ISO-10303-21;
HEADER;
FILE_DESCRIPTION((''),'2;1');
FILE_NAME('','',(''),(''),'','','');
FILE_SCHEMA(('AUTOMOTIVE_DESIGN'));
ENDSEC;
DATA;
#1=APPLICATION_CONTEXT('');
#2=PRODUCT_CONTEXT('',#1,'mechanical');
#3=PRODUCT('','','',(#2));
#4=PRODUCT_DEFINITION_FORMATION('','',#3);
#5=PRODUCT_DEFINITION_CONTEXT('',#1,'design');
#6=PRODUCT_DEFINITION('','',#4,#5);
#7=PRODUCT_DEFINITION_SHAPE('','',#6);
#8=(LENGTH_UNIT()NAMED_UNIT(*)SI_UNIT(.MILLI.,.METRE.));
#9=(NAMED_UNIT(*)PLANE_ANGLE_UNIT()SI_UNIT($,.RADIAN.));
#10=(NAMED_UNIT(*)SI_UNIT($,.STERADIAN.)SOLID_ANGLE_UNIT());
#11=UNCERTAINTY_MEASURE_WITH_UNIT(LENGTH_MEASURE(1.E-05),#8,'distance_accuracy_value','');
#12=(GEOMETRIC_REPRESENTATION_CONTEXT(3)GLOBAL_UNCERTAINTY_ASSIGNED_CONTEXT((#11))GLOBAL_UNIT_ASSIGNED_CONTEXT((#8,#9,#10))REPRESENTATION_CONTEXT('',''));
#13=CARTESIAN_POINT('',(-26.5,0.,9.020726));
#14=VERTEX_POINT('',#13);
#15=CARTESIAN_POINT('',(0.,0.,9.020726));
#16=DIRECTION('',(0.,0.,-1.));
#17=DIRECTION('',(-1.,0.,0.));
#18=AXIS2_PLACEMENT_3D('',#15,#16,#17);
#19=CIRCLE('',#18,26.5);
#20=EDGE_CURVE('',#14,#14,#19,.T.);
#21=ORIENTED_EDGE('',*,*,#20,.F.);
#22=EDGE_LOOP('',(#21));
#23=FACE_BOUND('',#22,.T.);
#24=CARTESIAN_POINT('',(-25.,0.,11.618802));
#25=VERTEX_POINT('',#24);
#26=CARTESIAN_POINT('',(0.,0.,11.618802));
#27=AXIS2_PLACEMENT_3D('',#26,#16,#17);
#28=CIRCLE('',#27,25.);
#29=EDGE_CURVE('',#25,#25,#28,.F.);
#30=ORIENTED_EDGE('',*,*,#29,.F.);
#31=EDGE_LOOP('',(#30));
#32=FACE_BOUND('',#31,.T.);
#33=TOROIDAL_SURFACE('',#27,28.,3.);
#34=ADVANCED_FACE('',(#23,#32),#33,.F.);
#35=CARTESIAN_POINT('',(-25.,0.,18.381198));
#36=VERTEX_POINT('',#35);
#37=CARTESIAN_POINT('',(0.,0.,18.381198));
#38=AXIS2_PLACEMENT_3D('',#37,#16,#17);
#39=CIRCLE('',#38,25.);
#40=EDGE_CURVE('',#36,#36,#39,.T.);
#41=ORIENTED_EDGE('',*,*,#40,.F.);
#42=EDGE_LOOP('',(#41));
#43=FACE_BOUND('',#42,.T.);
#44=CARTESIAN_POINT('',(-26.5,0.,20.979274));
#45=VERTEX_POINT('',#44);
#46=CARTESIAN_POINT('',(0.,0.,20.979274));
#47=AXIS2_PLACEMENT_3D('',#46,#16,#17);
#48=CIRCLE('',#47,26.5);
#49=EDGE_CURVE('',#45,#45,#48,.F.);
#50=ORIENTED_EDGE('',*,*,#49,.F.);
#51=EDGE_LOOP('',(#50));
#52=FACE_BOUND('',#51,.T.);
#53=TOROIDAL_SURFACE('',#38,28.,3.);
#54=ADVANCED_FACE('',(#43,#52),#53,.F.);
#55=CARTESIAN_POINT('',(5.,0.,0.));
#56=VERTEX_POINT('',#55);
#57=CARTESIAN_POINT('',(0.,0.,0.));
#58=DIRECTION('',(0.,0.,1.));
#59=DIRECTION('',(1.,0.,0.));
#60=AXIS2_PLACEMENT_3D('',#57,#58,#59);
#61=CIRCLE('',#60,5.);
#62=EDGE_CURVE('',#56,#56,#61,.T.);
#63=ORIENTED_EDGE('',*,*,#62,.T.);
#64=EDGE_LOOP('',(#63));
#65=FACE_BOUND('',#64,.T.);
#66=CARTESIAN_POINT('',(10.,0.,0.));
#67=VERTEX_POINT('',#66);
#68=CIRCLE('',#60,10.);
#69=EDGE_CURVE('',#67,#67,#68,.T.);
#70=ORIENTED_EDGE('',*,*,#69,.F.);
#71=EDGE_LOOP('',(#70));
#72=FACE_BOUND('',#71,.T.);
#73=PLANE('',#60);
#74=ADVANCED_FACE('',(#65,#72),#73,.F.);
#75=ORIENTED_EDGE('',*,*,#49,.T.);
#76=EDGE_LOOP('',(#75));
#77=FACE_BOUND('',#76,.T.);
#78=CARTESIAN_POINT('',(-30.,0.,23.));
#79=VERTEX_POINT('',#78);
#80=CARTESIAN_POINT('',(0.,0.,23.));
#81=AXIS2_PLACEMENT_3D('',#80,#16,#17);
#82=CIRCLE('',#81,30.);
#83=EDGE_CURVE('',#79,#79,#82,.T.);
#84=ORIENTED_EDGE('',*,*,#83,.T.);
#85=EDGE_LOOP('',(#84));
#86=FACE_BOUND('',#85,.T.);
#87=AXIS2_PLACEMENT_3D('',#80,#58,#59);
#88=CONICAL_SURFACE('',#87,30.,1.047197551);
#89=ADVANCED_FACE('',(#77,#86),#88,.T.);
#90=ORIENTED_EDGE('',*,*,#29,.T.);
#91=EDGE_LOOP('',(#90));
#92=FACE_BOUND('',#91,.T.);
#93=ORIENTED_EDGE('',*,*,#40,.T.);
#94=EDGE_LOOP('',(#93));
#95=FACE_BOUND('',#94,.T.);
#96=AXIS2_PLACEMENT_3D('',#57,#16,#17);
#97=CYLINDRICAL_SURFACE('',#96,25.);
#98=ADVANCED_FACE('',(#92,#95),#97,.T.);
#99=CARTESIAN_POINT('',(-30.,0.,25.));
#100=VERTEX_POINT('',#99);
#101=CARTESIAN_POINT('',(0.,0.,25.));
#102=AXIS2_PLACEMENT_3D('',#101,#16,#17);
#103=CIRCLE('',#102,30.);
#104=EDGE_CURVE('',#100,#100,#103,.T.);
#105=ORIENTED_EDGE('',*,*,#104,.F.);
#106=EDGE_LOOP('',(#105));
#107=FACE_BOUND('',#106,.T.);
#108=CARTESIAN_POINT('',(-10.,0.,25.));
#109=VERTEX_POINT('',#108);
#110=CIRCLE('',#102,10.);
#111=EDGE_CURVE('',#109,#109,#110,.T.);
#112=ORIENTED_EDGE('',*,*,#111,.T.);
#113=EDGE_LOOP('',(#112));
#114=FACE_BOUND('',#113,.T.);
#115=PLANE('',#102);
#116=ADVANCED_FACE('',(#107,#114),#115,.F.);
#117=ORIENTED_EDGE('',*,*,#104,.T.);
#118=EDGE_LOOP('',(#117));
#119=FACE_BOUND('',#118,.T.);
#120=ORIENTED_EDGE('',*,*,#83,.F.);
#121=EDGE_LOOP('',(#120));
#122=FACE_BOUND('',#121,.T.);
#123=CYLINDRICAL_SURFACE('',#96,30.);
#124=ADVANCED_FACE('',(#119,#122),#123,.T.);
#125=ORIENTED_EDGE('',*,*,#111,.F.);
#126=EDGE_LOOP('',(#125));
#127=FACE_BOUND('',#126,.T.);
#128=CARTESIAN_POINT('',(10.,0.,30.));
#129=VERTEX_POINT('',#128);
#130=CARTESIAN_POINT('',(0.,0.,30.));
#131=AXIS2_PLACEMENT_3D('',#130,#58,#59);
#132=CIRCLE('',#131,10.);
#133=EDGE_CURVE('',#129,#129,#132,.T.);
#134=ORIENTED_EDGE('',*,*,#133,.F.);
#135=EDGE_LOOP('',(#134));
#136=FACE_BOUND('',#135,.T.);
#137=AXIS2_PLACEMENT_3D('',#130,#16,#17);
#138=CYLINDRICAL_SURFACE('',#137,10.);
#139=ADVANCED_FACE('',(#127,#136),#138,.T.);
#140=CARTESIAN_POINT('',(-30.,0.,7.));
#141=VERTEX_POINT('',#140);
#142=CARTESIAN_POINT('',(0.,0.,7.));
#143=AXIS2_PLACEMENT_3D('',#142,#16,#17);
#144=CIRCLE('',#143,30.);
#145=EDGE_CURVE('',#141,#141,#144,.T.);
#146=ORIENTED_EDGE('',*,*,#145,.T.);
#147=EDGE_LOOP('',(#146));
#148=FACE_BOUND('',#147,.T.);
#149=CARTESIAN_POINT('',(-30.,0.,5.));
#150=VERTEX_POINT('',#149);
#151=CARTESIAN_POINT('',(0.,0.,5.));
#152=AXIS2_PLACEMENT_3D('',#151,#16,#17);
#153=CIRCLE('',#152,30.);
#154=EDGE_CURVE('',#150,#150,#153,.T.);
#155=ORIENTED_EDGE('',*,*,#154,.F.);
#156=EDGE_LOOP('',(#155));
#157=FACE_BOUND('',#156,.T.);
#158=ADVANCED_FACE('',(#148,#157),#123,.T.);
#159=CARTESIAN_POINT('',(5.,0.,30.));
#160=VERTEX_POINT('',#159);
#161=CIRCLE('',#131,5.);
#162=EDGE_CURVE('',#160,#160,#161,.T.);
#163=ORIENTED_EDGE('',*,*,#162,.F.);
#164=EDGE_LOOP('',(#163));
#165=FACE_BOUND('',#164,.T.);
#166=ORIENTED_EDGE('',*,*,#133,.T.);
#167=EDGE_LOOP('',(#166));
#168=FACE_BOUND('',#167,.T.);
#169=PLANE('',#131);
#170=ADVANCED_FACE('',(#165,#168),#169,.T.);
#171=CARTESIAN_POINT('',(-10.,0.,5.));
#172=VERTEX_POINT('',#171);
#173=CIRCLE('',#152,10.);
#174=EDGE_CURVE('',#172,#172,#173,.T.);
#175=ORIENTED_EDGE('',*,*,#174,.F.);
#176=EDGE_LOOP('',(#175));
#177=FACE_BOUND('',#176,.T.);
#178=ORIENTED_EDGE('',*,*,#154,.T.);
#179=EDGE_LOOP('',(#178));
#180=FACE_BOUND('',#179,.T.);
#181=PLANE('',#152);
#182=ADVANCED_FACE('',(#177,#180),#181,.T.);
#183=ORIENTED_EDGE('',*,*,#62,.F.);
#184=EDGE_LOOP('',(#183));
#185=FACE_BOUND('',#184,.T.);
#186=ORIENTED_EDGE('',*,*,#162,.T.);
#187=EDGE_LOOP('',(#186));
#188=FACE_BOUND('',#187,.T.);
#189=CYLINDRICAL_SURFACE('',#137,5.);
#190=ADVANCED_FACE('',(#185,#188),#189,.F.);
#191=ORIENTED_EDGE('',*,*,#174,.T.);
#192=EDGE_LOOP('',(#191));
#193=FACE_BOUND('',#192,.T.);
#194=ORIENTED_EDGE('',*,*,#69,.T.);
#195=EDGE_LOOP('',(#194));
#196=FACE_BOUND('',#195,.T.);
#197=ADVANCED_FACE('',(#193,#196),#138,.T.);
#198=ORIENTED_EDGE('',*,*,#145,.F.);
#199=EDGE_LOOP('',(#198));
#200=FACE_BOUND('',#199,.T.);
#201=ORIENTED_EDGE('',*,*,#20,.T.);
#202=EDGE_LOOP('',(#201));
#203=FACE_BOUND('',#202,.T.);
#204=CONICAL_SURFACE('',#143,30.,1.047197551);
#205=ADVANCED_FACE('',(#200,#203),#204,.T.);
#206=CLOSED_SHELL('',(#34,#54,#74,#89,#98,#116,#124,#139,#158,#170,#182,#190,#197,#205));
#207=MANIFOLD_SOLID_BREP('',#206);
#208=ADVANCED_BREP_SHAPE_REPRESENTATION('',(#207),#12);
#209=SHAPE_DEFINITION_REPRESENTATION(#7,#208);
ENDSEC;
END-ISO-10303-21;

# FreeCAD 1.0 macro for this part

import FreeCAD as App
import Part
import Sketcher

V = App.Vector
Q = App.Units.Quantity


def edges_at(feature, points):
    """Names of the edges that pass closest to the given points."""
    edges = feature.Shape.Edges
    near = lambda p: min(range(len(edges)), key=lambda i: edges[i].distToShape(Part.Vertex(*p))[0])
    return sorted({f"Edge{near(p) + 1}" for p in points})

doc = App.newDocument("Part")
body = doc.addObject("PartDesign::Body", "Body")

# Sketch on XY plane
sketch1 = body.newObject("Sketcher::SketchObject", "Sketch")
sketch1.AttachmentSupport = (doc.getObject("XY_Plane"), [""])
sketch1.MapMode = "FlatFace"
sketch1.addGeometry([
    Part.Circle(V(0, 0, 0), V(0, 0, 1), 10),
    Part.Circle(V(0, 0, 0), V(0, 0, 1), 5),
], False)
sketch1.addConstraint([
    Sketcher.Constraint("Coincident", 0, 3, -1, 1),
    Sketcher.Constraint("Coincident", 1, 3, -1, 1),
    Sketcher.Constraint("Diameter", 0, Q("20 mm")),
    Sketcher.Constraint("Diameter", 1, Q("10 mm")),
])
pad1 = body.newObject("PartDesign::Pad", "Pad")
pad1.Profile = sketch1
pad1.Length = 30

# Sketch on XZ plane
sketch2 = body.newObject("Sketcher::SketchObject", "Sketch001")
sketch2.AttachmentSupport = (doc.getObject("XZ_Plane"), [""])
sketch2.MapMode = "FlatFace"
sketch2.addGeometry([
    Part.LineSegment(V(30, 5, 0), V(10, 5, 0)),  # 0
    Part.LineSegment(V(10, 5, 0), V(10, 25, 0)),  # 1
    Part.LineSegment(V(10, 25, 0), V(30, 25, 0)),  # 2
    Part.LineSegment(V(30, 25, 0), V(30, 23, 0)),  # 3
    Part.LineSegment(V(30, 23, 0), V(25, 20.113249, 0)),  # 4
    Part.LineSegment(V(25, 20.113249, 0), V(25, 9.886751, 0)),  # 5
    Part.LineSegment(V(25, 9.886751, 0), V(30, 7, 0)),  # 6
    Part.LineSegment(V(30, 7, 0), V(30, 5, 0)),  # 7
], False)
sketch2.addConstraint([
    Sketcher.Constraint("Coincident", 0, 2, 1, 1),
    Sketcher.Constraint("Coincident", 1, 2, 2, 1),
    Sketcher.Constraint("Coincident", 2, 2, 3, 1),
    Sketcher.Constraint("Coincident", 3, 2, 4, 1),
    Sketcher.Constraint("Coincident", 4, 2, 5, 1),
    Sketcher.Constraint("Coincident", 5, 2, 6, 1),
    Sketcher.Constraint("Coincident", 6, 2, 7, 1),
    Sketcher.Constraint("Coincident", 7, 2, 0, 1),
    Sketcher.Constraint("Horizontal", 0),
    Sketcher.Constraint("Vertical", 1),
    Sketcher.Constraint("Horizontal", 2),
    Sketcher.Constraint("Vertical", 3),
    Sketcher.Constraint("Vertical", 5),
    Sketcher.Constraint("Vertical", 7),
    Sketcher.Constraint("Vertical", 3, 2, 6, 2),
    Sketcher.Constraint("Equal", 2, 1),
    Sketcher.Constraint("Equal", 3, 7),
    Sketcher.Constraint("Equal", 4, 6),
    Sketcher.Constraint("DistanceX", 0, 2, 0, 1, Q("20 mm")),
    Sketcher.Constraint("DistanceY", 3, 2, 3, 1, Q("2 mm")),
    Sketcher.Constraint("Angle", 4, Q("-150 deg")),
    Sketcher.Constraint("DistanceX", -1, 1, 0, 2, Q("10 mm")),
    Sketcher.Constraint("DistanceY", -1, 1, 0, 2, Q("5 mm")),
    Sketcher.Constraint("DistanceX", -1, 1, 4, 2, Q("25 mm")),
])
revolution = body.newObject("PartDesign::Revolution", "Revolution")
revolution.Profile = sketch2
revolution.ReferenceAxis = (sketch2, ["V_Axis"])
revolution.Angle = 360
doc.recompute()

fillet = body.newObject("PartDesign::Fillet", "Fillet")
fillet.Base = (revolution, edges_at(revolution, [(-25, 0, 20.113), (-25, 0, 9.887)]))
fillet.Radius = 3

doc.recompute()
